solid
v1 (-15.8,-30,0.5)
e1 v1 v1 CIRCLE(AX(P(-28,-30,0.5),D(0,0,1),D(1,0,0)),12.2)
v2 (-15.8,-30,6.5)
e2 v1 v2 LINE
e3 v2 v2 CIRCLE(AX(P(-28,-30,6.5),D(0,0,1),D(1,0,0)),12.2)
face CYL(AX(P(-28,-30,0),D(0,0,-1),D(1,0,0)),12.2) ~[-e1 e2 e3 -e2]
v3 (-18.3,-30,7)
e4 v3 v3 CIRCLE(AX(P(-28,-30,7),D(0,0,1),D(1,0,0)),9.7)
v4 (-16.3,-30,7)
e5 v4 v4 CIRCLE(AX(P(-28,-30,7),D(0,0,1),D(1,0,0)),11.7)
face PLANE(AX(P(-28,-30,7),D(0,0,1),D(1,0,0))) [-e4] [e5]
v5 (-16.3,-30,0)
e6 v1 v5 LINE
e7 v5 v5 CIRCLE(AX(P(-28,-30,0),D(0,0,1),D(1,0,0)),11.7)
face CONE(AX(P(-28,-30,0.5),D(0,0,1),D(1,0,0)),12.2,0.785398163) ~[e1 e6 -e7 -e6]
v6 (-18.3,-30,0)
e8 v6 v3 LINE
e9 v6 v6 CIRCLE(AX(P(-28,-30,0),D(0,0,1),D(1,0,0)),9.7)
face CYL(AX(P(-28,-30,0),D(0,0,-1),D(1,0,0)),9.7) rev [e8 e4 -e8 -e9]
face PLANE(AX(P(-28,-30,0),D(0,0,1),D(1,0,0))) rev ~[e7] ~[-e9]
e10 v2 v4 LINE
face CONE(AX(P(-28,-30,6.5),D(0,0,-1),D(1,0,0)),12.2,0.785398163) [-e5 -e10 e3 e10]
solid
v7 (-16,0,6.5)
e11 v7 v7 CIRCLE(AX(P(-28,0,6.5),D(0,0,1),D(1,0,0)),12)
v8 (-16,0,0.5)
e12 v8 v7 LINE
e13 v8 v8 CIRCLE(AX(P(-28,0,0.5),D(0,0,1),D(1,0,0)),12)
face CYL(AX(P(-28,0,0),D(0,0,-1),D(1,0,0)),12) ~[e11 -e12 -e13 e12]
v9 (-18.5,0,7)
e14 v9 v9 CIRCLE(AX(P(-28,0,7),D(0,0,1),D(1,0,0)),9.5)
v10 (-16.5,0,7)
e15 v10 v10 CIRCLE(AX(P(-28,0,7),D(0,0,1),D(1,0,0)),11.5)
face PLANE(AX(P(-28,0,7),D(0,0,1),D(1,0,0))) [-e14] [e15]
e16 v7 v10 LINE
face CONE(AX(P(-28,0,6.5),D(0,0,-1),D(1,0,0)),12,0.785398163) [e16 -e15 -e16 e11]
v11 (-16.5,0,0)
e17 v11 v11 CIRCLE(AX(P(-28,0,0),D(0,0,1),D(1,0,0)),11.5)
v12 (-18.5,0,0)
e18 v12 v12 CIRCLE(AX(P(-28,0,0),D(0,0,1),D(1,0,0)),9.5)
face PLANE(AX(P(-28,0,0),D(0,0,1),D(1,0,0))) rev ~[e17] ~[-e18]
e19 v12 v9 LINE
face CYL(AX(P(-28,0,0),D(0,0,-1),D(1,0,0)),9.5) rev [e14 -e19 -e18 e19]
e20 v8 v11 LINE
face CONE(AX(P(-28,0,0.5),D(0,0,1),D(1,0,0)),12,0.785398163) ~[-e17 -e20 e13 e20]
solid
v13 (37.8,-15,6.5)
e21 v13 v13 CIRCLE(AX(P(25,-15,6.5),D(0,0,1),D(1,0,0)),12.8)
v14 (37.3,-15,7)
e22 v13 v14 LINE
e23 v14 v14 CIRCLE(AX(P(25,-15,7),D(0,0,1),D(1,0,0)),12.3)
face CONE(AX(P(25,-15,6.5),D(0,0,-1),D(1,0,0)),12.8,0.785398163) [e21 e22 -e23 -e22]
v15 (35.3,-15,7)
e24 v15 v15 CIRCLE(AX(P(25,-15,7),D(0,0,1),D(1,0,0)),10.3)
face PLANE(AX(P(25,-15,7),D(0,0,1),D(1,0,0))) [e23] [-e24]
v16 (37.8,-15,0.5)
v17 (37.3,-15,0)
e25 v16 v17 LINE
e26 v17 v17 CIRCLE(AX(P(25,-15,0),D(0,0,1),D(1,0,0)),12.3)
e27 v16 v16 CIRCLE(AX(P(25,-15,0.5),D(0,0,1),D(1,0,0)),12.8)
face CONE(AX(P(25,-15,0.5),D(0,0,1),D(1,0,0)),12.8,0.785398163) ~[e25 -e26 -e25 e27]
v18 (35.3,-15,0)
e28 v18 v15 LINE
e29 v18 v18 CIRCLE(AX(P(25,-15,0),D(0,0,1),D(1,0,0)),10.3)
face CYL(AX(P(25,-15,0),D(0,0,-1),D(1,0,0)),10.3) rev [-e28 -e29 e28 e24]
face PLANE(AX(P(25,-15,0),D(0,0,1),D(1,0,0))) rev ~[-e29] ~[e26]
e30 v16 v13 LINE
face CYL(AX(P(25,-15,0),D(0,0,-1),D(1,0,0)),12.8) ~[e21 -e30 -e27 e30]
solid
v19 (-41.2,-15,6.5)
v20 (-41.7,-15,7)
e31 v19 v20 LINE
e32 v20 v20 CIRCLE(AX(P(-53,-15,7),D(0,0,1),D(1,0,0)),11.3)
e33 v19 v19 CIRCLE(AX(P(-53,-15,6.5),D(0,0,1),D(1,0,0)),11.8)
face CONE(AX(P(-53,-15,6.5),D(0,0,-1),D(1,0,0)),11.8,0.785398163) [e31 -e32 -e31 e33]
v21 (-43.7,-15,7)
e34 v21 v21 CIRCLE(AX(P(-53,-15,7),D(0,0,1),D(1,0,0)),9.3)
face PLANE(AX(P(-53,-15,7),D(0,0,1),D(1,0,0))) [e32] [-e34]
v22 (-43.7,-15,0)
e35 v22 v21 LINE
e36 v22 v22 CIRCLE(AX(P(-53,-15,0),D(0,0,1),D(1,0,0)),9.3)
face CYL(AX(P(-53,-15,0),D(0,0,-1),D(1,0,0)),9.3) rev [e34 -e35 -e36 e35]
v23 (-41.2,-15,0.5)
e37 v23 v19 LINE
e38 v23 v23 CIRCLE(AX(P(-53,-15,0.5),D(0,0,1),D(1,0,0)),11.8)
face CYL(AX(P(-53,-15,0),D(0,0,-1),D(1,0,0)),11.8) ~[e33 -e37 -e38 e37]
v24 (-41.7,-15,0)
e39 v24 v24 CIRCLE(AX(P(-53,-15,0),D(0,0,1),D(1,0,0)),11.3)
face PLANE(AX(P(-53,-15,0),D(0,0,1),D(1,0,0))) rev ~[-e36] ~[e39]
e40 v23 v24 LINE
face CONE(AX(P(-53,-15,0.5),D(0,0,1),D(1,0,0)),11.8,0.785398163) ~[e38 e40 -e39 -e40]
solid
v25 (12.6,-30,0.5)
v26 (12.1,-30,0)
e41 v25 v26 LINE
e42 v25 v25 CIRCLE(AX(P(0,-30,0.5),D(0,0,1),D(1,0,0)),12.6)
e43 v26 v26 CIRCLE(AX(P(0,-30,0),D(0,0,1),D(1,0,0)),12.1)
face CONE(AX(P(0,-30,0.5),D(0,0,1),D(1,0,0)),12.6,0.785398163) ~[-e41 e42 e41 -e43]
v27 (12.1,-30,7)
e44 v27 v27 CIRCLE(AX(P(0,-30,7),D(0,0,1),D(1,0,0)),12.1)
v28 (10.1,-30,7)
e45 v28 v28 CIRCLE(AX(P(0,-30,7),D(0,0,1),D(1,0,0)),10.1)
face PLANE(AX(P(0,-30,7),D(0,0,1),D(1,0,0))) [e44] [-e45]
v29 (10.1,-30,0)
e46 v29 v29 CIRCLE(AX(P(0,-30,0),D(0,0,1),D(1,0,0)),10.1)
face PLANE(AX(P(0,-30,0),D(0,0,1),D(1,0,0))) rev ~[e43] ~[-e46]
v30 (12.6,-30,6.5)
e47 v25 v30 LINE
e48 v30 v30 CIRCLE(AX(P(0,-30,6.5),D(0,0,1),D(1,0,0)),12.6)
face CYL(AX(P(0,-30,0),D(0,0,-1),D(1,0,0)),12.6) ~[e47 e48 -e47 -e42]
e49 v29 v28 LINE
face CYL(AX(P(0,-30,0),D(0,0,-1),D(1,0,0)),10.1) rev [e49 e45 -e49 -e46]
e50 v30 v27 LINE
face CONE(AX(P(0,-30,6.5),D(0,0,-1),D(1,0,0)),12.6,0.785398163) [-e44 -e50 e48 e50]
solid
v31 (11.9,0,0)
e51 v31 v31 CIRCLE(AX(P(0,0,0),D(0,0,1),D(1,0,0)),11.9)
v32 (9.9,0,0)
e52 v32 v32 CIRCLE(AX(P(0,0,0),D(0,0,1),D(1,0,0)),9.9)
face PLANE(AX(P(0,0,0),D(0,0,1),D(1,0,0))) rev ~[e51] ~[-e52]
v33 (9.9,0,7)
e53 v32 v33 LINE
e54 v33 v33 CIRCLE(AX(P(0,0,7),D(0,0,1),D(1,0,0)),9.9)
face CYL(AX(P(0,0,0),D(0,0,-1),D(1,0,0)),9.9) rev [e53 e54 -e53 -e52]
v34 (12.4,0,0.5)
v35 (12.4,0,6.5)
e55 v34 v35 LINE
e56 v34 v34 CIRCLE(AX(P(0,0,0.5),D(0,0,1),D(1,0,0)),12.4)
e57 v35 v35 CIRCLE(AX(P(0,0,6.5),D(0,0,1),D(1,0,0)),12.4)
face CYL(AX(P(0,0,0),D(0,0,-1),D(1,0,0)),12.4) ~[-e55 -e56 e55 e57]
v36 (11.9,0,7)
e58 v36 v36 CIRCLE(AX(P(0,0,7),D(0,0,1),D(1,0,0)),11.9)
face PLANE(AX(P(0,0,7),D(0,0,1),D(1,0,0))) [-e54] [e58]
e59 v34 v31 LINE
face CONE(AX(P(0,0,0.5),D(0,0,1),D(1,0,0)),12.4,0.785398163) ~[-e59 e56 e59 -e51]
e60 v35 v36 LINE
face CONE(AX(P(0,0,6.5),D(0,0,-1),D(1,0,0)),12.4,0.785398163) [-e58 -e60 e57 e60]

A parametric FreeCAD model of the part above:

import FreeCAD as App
import Part
import Sketcher
from FreeCAD import Vector
Q = App.Units.Quantity


def edges_at(feature, points):
    """Names of the edges that pass closest to the given points."""
    edges = feature.Shape.Edges
    near = lambda p: min(range(len(edges)), key=lambda i: edges[i].distToShape(Part.Vertex(*p))[0])
    return sorted({f"Edge{near(p) + 1}" for p in points})

doc = App.newDocument("Part")
body = doc.addObject("PartDesign::Body", "Body")
body.AllowCompound = True

# Sketch on XY plane
sketch1 = doc.addObject("Sketcher::SketchObject", "Sketch")
body.addObject(sketch1)
sketch1.AttachmentSupport = (doc.XY_Plane, [""])
sketch1.MapMode = "FlatFace"
sketch1.addGeometry([
    Part.Circle(Vector(-53, -15, 0), Vector(0, 0, 1), 12),  # 0
    Part.Circle(Vector(-53, -15, 0), Vector(0, 0, 1), 9),  # 1
    Part.Circle(Vector(-28, 0, 0), Vector(0, 0, 1), 12),  # 2
    Part.Circle(Vector(-28, 0, 0), Vector(0, 0, 1), 10),  # 3
    Part.Circle(Vector(0, 0, 0), Vector(0, 0, 1), 12),  # 4
    Part.Circle(Vector(0, 0, 0), Vector(0, 0, 1), 10),  # 5
    Part.Circle(Vector(25, -15, 0), Vector(0, 0, 1), 13),  # 6
    Part.Circle(Vector(25, -15, 0), Vector(0, 0, 1), 10),  # 7
    Part.Circle(Vector(0, -30, 0), Vector(0, 0, 1), 13),  # 8
    Part.Circle(Vector(0, -30, 0), Vector(0, 0, 1), 10),  # 9
    Part.Circle(Vector(-28, -30, 0), Vector(0, 0, 1), 12),  # 10
    Part.Circle(Vector(-28, -30, 0), Vector(0, 0, 1), 10),  # 11
], False)
sketch1.addConstraint([
    Sketcher.Constraint("Coincident", 4, 3, -1, 1),
    Sketcher.Constraint("Coincident", 5, 3, -1, 1),
    Sketcher.Constraint("Coincident", 1, 3, 0, 3),
    Sketcher.Constraint("Coincident", 3, 3, 2, 3),
    Sketcher.Constraint("Coincident", 7, 3, 6, 3),
    Sketcher.Constraint("Coincident", 9, 3, 8, 3),
    Sketcher.Constraint("Coincident", 11, 3, 10, 3),
    Sketcher.Constraint("PointOnObject", 2, 3, -1),
    Sketcher.Constraint("PointOnObject", 8, 3, -2),
    Sketcher.Constraint("Horizontal", 1, 3, 6, 3),
    Sketcher.Constraint("Horizontal", 9, 3, 10, 3),
    Sketcher.Constraint("Vertical", 3, 3, 10, 3),
    Sketcher.Constraint("Diameter", 2, Q("24 mm")),
    Sketcher.Constraint("Diameter", 3, Q("19 mm")),
    Sketcher.Constraint("Diameter", 0, Q("23.6 mm")),
    Sketcher.Constraint("Diameter", 1, Q("18.6 mm")),
    Sketcher.Constraint("Diameter", 4, Q("24.8 mm")),
    Sketcher.Constraint("Diameter", 5, Q("19.8 mm")),
    Sketcher.Constraint("Diameter", 6, Q("25.6 mm")),
    Sketcher.Constraint("Diameter", 7, Q("20.6 mm")),
    Sketcher.Constraint("Diameter", 8, Q("25.2 mm")),
    Sketcher.Constraint("Diameter", 9, Q("20.2 mm")),
    Sketcher.Constraint("Diameter", 10, Q("24.4 mm")),
    Sketcher.Constraint("Diameter", 11, Q("19.4 mm")),
    Sketcher.Constraint("DistanceX", 0, 3, -1, 1, Q("53 mm")),
    Sketcher.Constraint("DistanceY", 0, 3, -1, 1, Q("15 mm")),
    Sketcher.Constraint("DistanceX", 2, 3, -1, 1, Q("28 mm")),
    Sketcher.Constraint("DistanceX", -1, 1, 6, 3, Q("25 mm")),
    Sketcher.Constraint("DistanceY", 8, 3, -1, 1, Q("30 mm")),
])
pad1 = doc.addObject("PartDesign::Pad", "Pad")
body.addObject(pad1)
pad1.Profile = sketch1
pad1.Length = 7
doc.recompute()

chamfer = doc.addObject("PartDesign::Chamfer", "Chamfer")
body.addObject(chamfer)
chamfer.Base = (pad1, edges_at(pad1, [
    (-64.8, -15, 7),
    (-64.8, -15, 0),
    (-40, 0, 7),
    (-40, 0, 0),
    (-12.4, 0, 0),
    (-12.4, 0, 7),
    (12.2, -15, 7),
    (12.2, -15, 0),
    (-12.6, -30, 7),
    (-12.6, -30, 0),
    (-40.2, -30, 7),
    (-40.2, -30, 0),
]))
chamfer.Size = 0.5

doc.recompute()
